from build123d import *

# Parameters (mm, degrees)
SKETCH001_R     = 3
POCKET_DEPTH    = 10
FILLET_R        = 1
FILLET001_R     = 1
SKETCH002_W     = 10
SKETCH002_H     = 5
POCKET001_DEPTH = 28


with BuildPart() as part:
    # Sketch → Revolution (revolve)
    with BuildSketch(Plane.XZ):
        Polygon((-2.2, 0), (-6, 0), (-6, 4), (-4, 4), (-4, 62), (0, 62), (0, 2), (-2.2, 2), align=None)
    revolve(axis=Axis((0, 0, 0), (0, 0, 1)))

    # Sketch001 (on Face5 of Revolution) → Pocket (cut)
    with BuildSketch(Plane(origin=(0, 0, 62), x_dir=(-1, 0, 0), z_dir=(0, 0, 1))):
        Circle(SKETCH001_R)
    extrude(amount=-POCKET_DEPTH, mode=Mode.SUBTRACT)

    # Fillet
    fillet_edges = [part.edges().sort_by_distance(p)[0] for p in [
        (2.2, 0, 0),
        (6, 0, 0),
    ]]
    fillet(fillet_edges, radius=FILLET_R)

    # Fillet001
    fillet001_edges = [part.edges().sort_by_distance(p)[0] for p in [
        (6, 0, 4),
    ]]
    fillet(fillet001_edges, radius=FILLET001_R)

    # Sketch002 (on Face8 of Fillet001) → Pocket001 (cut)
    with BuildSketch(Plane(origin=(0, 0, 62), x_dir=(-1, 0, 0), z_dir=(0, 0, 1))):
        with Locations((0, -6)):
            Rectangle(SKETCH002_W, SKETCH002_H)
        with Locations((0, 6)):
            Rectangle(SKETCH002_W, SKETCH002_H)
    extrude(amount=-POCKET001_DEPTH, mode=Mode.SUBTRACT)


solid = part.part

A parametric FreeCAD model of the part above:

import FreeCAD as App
import Part
import Sketcher

V = App.Vector


def edges_at(feature, points):
    """Names of the edges that pass closest to the given points."""
    edges = feature.Shape.Edges
    near = lambda p: min(range(len(edges)), key=lambda i: edges[i].distToShape(Part.Vertex(*p))[0])
    return sorted({f"Edge{near(p) + 1}" for p in points})

doc = App.newDocument("Part")
params = doc.addObject("Spreadsheet::Sheet", "Params")
for row, (alias, value) in enumerate([
    ("sketch1_width", "4 mm"),
    ("sketch1_width2", "2 mm"),
    ("sketch1_height", "60 mm"),
    ("sketch1_width3", "3.8 mm"),
    ("revolution_angle", "360 deg"),
    ("sketch2_diameter", "6 mm"),
    ("pocket1_length", "10 mm"),
    ("fillet_radius", "1 mm"),
    ("fillet2_radius", "1 mm"),
    ("sketch3_width", "10 mm"),
    ("sketch3_height", "5 mm"),
    ("pocket2_length", "28 mm"),
], start=1):
    params.set(f"A{row}", alias)
    params.set(f"B{row}", "=" + value)
    params.setAlias(f"B{row}", alias)

body = doc.addObject("PartDesign::Body", "Body")

# Sketch on XZ plane
sketch1 = body.newObject("Sketcher::SketchObject", "Sketch")
sketch1.AttachmentSupport = (doc.getObject("XZ_Plane"), [""])
sketch1.MapMode = "FlatFace"
sketch1.addGeometry([
    Part.LineSegment(V(-6, 0, 0), V(-2.2, 0, 0)),  # 0
    Part.LineSegment(V(-2.2, 0, 0), V(-2.2, 2, 0)),  # 1
    Part.LineSegment(V(-2.2, 2, 0), V(0, 2, 0)),  # 2
    Part.LineSegment(V(0, 2, 0), V(0, 62, 0)),  # 3
    Part.LineSegment(V(0, 62, 0), V(-4, 62, 0)),  # 4
    Part.LineSegment(V(-4, 62, 0), V(-4, 4, 0)),  # 5
    Part.LineSegment(V(-4, 4, 0), V(-6, 4, 0)),  # 6
    Part.LineSegment(V(-6, 4, 0), V(-6, 0, 0)),  # 7
], False)
sketch1.addConstraint([
    Sketcher.Constraint("Coincident", 0, 2, 1, 1),
    Sketcher.Constraint("Coincident", 1, 2, 2, 1),
    Sketcher.Constraint("Coincident", 2, 2, 3, 1),
    Sketcher.Constraint("Coincident", 3, 2, 4, 1),
    Sketcher.Constraint("Coincident", 4, 2, 5, 1),
    Sketcher.Constraint("Coincident", 5, 2, 6, 1),
    Sketcher.Constraint("Coincident", 6, 2, 7, 1),
    Sketcher.Constraint("Coincident", 7, 2, 0, 1),
    Sketcher.Constraint("Horizontal", 0),
    Sketcher.Constraint("Vertical", 1),
    Sketcher.Constraint("Horizontal", 2),
    Sketcher.Constraint("Vertical", 3),
    Sketcher.Constraint("Horizontal", 4),
    Sketcher.Constraint("Vertical", 5),
    Sketcher.Constraint("Horizontal", 6),
    Sketcher.Constraint("Vertical", 7),
    Sketcher.Constraint("PointOnObject", 0, 2, -1),
    Sketcher.Constraint("PointOnObject", 2, 2, -2),
    Sketcher.Constraint("Equal", 6, 1),
    Sketcher.Constraint("Equal", 4, 7),
    Sketcher.Constraint("DistanceX", 4, 2, 4, 1, 4.0),
    Sketcher.Constraint("DistanceX", 6, 2, 6, 1, 2.0),
    Sketcher.Constraint("DistanceY", 3, 1, 3, 2, 60.0),
    Sketcher.Constraint("DistanceX", 0, 1, 0, 2, 3.8),
])
sketch1.setExpression("Constraints[20]", "Params.sketch1_width")
sketch1.setExpression("Constraints[21]", "Params.sketch1_width2")
sketch1.setExpression("Constraints[22]", "Params.sketch1_height")
sketch1.setExpression("Constraints[23]", "Params.sketch1_width3")
revolution = body.newObject("PartDesign::Revolution", "Revolution")
revolution.Profile = sketch1
revolution.ReferenceAxis = (sketch1, ["V_Axis"])
revolution.setExpression("Angle", "Params.revolution_angle")

# Sketch on XY plane
sketch2 = body.newObject("Sketcher::SketchObject", "Sketch001")
sketch2.AttachmentSupport = (doc.getObject("XY_Plane"), [""])
sketch2.MapMode = "FlatFace"
sketch2.AttachmentOffset = App.Placement(V(0, 0, 62), App.Rotation())
sketch2.addGeometry(Part.Circle(V(0, 0, 0), V(0, 0, 1), 3), False)
sketch2.addConstraint([
    Sketcher.Constraint("Coincident", 0, 3, -1, 1),
    Sketcher.Constraint("Diameter", 0, 6.0),
])
sketch2.setExpression("Constraints[1]", "Params.sketch2_diameter")
pocket1 = body.newObject("PartDesign::Pocket", "Pocket")
pocket1.Profile = sketch2
pocket1.setExpression("Length", "Params.pocket1_length")
doc.recompute()

fillet = body.newObject("PartDesign::Fillet", "Fillet")
fillet.Base = (pocket1, edges_at(pocket1, [(2.2, 0, 0), (6, 0, 0)]))
fillet.setExpression("Radius", "Params.fillet_radius")
doc.recompute()

fillet2 = body.newObject("PartDesign::Fillet", "Fillet001")
fillet2.Base = (fillet, edges_at(fillet, [(6, 0, 4)]))
fillet2.setExpression("Radius", "Params.fillet2_radius")

# Sketch on XY plane
sketch3 = body.newObject("Sketcher::SketchObject", "Sketch002")
sketch3.AttachmentSupport = (doc.getObject("XY_Plane"), [""])
sketch3.MapMode = "FlatFace"
sketch3.AttachmentOffset = App.Placement(V(0, 0, 62), App.Rotation())
sketch3.addGeometry([
    Part.LineSegment(V(5, 3.5, 0), V(5, 8.5, 0)),  # 0
    Part.LineSegment(V(5, 8.5, 0), V(-5, 8.5, 0)),  # 1
    Part.LineSegment(V(-5, 8.5, 0), V(-5, 3.5, 0)),  # 2
    Part.LineSegment(V(-5, 3.5, 0), V(5, 3.5, 0)),  # 3
    Part.LineSegment(V(5, -8.5, 0), V(5, -3.5, 0)),  # 4
    Part.LineSegment(V(5, -3.5, 0), V(-5, -3.5, 0)),  # 5
    Part.LineSegment(V(-5, -3.5, 0), V(-5, -8.5, 0)),  # 6
    Part.LineSegment(V(-5, -8.5, 0), V(5, -8.5, 0)),  # 7
], False)
sketch3.addConstraint([
    Sketcher.Constraint("Coincident", 0, 2, 1, 1),
    Sketcher.Constraint("Coincident", 1, 2, 2, 1),
    Sketcher.Constraint("Coincident", 2, 2, 3, 1),
    Sketcher.Constraint("Coincident", 3, 2, 0, 1),
    Sketcher.Constraint("Coincident", 4, 2, 5, 1),
    Sketcher.Constraint("Coincident", 5, 2, 6, 1),
    Sketcher.Constraint("Coincident", 6, 2, 7, 1),
    Sketcher.Constraint("Coincident", 7, 2, 4, 1),
    Sketcher.Constraint("Vertical", 0),
    Sketcher.Constraint("Horizontal", 1),
    Sketcher.Constraint("Vertical", 2),
    Sketcher.Constraint("Horizontal", 3),
    Sketcher.Constraint("Vertical", 4),
    Sketcher.Constraint("Horizontal", 5),
    Sketcher.Constraint("Vertical", 6),
    Sketcher.Constraint("Horizontal", 7),
    Sketcher.Constraint("Symmetric", 2, 2, 4, 2, -1, 1),
    Sketcher.Constraint("Symmetric", 0, 2, 6, 2, -1, 1),
    Sketcher.Constraint("Vertical", 3, 2, 4, 2),
    Sketcher.Constraint("DistanceX", 1, 2, 1, 1, 10.0),
    Sketcher.Constraint("DistanceY", 0, 1, 0, 2, 5.0),
    Sketcher.Constraint("DistanceY", 4, 2, 3, 2, 7.0),
])
sketch3.setExpression("Constraints[19]", "Params.sketch3_width")
sketch3.setExpression("Constraints[20]", "Params.sketch3_height")
pocket2 = body.newObject("PartDesign::Pocket", "Pocket001")
pocket2.Profile = sketch3
pocket2.setExpression("Length", "Params.pocket2_length")

doc.recompute()
